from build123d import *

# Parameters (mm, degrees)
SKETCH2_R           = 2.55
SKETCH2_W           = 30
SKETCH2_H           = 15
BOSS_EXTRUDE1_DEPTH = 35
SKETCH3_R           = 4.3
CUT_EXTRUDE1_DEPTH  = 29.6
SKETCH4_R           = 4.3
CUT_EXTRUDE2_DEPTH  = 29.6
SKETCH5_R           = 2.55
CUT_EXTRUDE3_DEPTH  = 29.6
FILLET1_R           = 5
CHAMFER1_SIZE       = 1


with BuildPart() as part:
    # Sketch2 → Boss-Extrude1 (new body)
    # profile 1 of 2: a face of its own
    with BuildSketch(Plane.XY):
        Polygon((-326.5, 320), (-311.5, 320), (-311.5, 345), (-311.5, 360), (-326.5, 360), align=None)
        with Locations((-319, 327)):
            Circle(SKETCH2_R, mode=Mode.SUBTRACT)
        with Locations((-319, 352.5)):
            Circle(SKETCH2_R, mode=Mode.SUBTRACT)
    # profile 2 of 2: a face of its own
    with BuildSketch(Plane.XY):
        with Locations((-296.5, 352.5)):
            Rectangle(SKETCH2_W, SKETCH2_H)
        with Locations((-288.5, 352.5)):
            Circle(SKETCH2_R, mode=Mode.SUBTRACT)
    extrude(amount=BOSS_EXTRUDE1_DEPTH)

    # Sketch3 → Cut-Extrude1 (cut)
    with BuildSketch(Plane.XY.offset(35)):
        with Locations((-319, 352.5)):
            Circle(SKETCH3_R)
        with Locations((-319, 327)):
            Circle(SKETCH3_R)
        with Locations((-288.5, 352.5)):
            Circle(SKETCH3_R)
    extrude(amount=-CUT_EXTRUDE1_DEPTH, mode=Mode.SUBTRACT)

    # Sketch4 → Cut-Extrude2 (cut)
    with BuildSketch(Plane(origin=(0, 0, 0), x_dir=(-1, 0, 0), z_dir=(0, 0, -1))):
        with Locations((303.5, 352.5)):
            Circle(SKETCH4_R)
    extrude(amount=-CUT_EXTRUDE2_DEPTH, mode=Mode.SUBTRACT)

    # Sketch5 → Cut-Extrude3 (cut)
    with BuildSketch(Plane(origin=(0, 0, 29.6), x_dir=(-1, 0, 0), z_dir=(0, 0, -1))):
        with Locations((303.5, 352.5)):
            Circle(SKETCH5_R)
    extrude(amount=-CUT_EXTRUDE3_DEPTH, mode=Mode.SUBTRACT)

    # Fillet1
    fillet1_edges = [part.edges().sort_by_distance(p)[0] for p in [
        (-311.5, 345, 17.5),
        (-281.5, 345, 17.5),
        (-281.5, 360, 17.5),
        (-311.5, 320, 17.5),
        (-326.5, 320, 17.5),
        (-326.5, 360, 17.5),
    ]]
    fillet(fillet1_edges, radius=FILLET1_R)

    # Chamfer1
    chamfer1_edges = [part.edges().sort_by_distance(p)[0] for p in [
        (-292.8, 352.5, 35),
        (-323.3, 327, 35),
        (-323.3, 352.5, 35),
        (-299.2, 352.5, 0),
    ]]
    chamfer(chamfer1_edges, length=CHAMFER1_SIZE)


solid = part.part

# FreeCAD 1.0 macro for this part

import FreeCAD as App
import Part
import Sketcher

V = App.Vector


def edges_at(feature, points):
    """Names of the edges that pass closest to the given points."""
    edges = feature.Shape.Edges
    near = lambda p: min(range(len(edges)), key=lambda i: edges[i].distToShape(Part.Vertex(*p))[0])
    return sorted({f"Edge{near(p) + 1}" for p in points})

doc = App.newDocument("Part")
params = doc.addObject("Spreadsheet::Sheet", "Params")
for row, (alias, value) in enumerate([
    ("sketch1_diameter", "5.1 mm"),
    ("sketch1_width", "15 mm"),
    ("sketch1_width2", "30 mm"),
    ("sketch1_height", "25 mm"),
    ("pad1_length", "35 mm"),
    ("sketch2_diameter", "8.6 mm"),
    ("pocket1_length", "29.6 mm"),
    ("sketch3_diameter", "8.6 mm"),
    ("pocket2_length", "29.6 mm"),
    ("sketch4_diameter", "5.1 mm"),
    ("pocket3_length", "29.6 mm"),
    ("fillet_radius", "5 mm"),
    ("chamfer_size", "1 mm"),
], start=1):
    params.set(f"A{row}", alias)
    params.set(f"B{row}", "=" + value)
    params.setAlias(f"B{row}", alias)

body = doc.addObject("PartDesign::Body", "Body")

sketch1 = doc.addObject("Sketcher::SketchObject", "Sketch")
body.addObject(sketch1)
sketch1.AttachmentSupport = (doc.XY_Plane, [""])
sketch1.MapMode = "FlatFace"
sketch1.addGeometry([
    Part.LineSegment(V(-326.5, 320, 0), V(-311.5, 320, 0)),
    Part.LineSegment(V(-311.5, 320, 0), V(-311.5, 345, 0)),
    Part.LineSegment(V(-311.5, 345, 0), V(-281.5, 345, 0)),
    Part.LineSegment(V(-281.5, 345, 0), V(-281.5, 360, 0)),
    Part.LineSegment(V(-281.5, 360, 0), V(-326.5, 360, 0)),
    Part.LineSegment(V(-326.5, 360, 0), V(-326.5, 320, 0)),
    Part.Circle(V(-319, 327, 0), V(0, 0, 1), 2.5),
    Part.Circle(V(-319, 352.5, 0), V(0, 0, 1), 2.5),
    Part.Circle(V(-288.5, 352.5, 0), V(0, 0, 1), 2.5),
], False)
sketch1.addConstraint([
    Sketcher.Constraint("Coincident", 0, 2, 1, 1),
    Sketcher.Constraint("Coincident", 1, 2, 2, 1),
    Sketcher.Constraint("Coincident", 2, 2, 3, 1),
    Sketcher.Constraint("Coincident", 3, 2, 4, 1),
    Sketcher.Constraint("Coincident", 4, 2, 5, 1),
    Sketcher.Constraint("Coincident", 5, 2, 0, 1),
    Sketcher.Constraint("Horizontal", 0),
    Sketcher.Constraint("Vertical", 1),
    Sketcher.Constraint("Horizontal", 2),
    Sketcher.Constraint("Vertical", 3),
    Sketcher.Constraint("Horizontal", 4),
    Sketcher.Constraint("Vertical", 5),
    Sketcher.Constraint("Equal", 6, 7),
    Sketcher.Constraint("Equal", 7, 8),
    Sketcher.Constraint("Horizontal", 7, 3, 8, 3),
    Sketcher.Constraint("Vertical", 6, 3, 7, 3),
    Sketcher.Constraint("Equal", 0, 3),
    Sketcher.Constraint("Diameter", 6, 5.1),
    Sketcher.Constraint("DistanceX", 0, 1, 0, 2, 15.0),
    Sketcher.Constraint("DistanceX", 2, 1, 2, 2, 30.0),
    Sketcher.Constraint("DistanceY", 1, 1, 1, 2, 25.0),
    Sketcher.Constraint("DistanceX", 6, 3, -1, 1, 319.0),
    Sketcher.Constraint("DistanceY", -1, 1, 6, 3, 327.0),
    Sketcher.Constraint("DistanceY", -1, 1, 0, 2, 320.0),
    Sketcher.Constraint("DistanceX", 0, 2, 8, 3, 23.0),
    Sketcher.Constraint("DistanceY", -1, 1, 7, 3, 352.5),
    Sketcher.Constraint("DistanceX", 8, 3, -1, 1, 288.5),
])
sketch1.setExpression("Constraints[17]", "Params.sketch1_diameter")
sketch1.setExpression("Constraints[18]", "Params.sketch1_width")
sketch1.setExpression("Constraints[19]", "Params.sketch1_width2")
sketch1.setExpression("Constraints[20]", "Params.sketch1_height")
pad1 = doc.addObject("PartDesign::Pad", "Pad")
body.addObject(pad1)
pad1.Profile = sketch1
pad1.setExpression("Length", "Params.pad1_length")

sketch2 = doc.addObject("Sketcher::SketchObject", "Sketch001")
body.addObject(sketch2)
sketch2.AttachmentSupport = (doc.XY_Plane, [""])
sketch2.MapMode = "FlatFace"
sketch2.AttachmentOffset = App.Placement(V(0, 0, 35), App.Rotation())
sketch2.addGeometry([
    Part.Circle(V(-319, 352.5, 0), V(0, 0, 1), 4.3),
    Part.Circle(V(-319, 327, 0), V(0, 0, 1), 4.3),
    Part.Circle(V(-288.5, 352.5, 0), V(0, 0, 1), 4.3),
], False)
sketch2.addConstraint([
    Sketcher.Constraint("Equal", 0, 1),
    Sketcher.Constraint("Equal", 1, 2),
    Sketcher.Constraint("Horizontal", 0, 3, 2, 3),
    Sketcher.Constraint("Vertical", 0, 3, 1, 3),
    Sketcher.Constraint("Diameter", 0, 8.6),
    Sketcher.Constraint("DistanceX", 0, 3, -1, 1, 319.0),
    Sketcher.Constraint("DistanceY", -1, 1, 1, 3, 327.0),
    Sketcher.Constraint("DistanceY", -1, 1, 0, 3, 352.5),
    Sketcher.Constraint("DistanceX", 2, 3, -1, 1, 288.5),
])
sketch2.setExpression("Constraints[4]", "Params.sketch2_diameter")
pocket1 = doc.addObject("PartDesign::Pocket", "Pocket")
body.addObject(pocket1)
pocket1.Profile = sketch2
pocket1.setExpression("Length", "Params.pocket1_length")

sketch3 = doc.addObject("Sketcher::SketchObject", "Sketch002")
body.addObject(sketch3)
sketch3.AttachmentSupport = (doc.XY_Plane, [""])
sketch3.MapMode = "FlatFace"
sketch3.addGeometry(Part.Circle(V(-303.5, 352.5, 0), V(0, 0, 1), 4.3), False)
sketch3.addConstraint([
    Sketcher.Constraint("Diameter", 0, 8.6),
    Sketcher.Constraint("DistanceX", 0, 3, -1, 1, 303.5),
    Sketcher.Constraint("DistanceY", -1, 1, 0, 3, 352.5),
])
sketch3.setExpression("Constraints[0]", "Params.sketch3_diameter")
pocket2 = doc.addObject("PartDesign::Pocket", "Pocket001")
body.addObject(pocket2)
pocket2.Profile = sketch3
pocket2.setExpression("Length", "Params.pocket2_length")
pocket2.Reversed = True

sketch4 = doc.addObject("Sketcher::SketchObject", "Sketch003")
body.addObject(sketch4)
sketch4.AttachmentSupport = (doc.XY_Plane, [""])
sketch4.MapMode = "FlatFace"
sketch4.AttachmentOffset = App.Placement(V(0, 0, 29.6), App.Rotation())
sketch4.addGeometry(Part.Circle(V(-303.5, 352.5, 0), V(0, 0, 1), 2.5), False)
sketch4.addConstraint([
    Sketcher.Constraint("Diameter", 0, 5.1),
    Sketcher.Constraint("DistanceX", 0, 3, -1, 1, 303.5),
    Sketcher.Constraint("DistanceY", -1, 1, 0, 3, 352.5),
])
sketch4.setExpression("Constraints[0]", "Params.sketch4_diameter")
pocket3 = doc.addObject("PartDesign::Pocket", "Pocket002")
body.addObject(pocket3)
pocket3.Profile = sketch4
pocket3.setExpression("Length", "Params.pocket3_length")
pocket3.Reversed = True
doc.recompute()

fillet = doc.addObject("PartDesign::Fillet", "Fillet")
body.addObject(fillet)
fillet.Base = (pocket3, edges_at(pocket3, [
    (-311.5, 345, 17.5),
    (-281.5, 345, 17.5),
    (-281.5, 360, 17.5),
    (-311.5, 320, 17.5),
    (-326.5, 320, 17.5),
    (-326.5, 360, 17.5),
]))
fillet.setExpression("Radius", "Params.fillet_radius")
doc.recompute()

chamfer = doc.addObject("PartDesign::Chamfer", "Chamfer")
body.addObject(chamfer)
chamfer.Base = (fillet, edges_at(fillet, [
    (-292.8, 352.5, 35),
    (-323.3, 327, 35),
    (-323.3, 352.5, 35),
    (-299.2, 352.5, 0),
]))
chamfer.setExpression("Size", "Params.chamfer_size")

doc.recompute()
